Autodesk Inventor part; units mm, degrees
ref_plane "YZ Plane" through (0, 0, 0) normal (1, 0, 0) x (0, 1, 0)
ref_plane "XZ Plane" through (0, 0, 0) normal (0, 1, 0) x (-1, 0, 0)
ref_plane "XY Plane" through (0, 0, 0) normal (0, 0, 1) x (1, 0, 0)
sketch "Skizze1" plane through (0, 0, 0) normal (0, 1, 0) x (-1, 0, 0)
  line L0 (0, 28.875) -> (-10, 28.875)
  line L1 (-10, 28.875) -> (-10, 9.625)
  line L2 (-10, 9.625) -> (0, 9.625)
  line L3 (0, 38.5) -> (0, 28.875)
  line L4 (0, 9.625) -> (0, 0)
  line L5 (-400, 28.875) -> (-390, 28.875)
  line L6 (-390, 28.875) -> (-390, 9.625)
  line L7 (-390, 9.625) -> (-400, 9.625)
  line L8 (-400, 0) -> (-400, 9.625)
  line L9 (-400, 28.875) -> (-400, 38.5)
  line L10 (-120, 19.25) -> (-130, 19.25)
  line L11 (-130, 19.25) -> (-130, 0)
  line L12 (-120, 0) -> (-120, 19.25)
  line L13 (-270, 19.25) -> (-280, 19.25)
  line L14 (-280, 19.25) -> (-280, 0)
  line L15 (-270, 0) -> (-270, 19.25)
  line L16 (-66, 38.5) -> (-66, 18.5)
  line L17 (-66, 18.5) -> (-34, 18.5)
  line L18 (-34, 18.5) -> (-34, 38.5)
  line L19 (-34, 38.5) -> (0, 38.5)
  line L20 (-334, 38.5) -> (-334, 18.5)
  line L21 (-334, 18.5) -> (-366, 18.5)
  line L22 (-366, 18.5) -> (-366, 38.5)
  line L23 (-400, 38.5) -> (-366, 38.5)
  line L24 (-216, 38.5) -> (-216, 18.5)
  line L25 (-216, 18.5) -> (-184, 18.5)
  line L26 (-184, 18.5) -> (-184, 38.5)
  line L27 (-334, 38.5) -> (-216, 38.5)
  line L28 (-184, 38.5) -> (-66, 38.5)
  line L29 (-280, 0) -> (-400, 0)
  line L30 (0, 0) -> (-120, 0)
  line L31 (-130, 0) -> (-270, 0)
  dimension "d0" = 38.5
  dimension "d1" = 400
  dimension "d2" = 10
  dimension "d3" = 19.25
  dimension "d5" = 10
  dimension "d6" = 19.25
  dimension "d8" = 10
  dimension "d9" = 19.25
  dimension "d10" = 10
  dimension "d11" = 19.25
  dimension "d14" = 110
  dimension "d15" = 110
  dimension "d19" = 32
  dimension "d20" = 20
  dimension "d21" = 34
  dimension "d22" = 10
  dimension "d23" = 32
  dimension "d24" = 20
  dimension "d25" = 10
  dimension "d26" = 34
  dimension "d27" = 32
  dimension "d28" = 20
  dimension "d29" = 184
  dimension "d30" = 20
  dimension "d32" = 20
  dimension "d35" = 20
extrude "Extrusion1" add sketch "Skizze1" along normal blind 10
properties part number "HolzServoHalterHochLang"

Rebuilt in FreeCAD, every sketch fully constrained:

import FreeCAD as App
import Part
import Sketcher

V = App.Vector
Q = App.Units.Quantity

doc = App.newDocument("Part")
body = doc.addObject("PartDesign::Body", "Body")

# Sketch on XZ plane
sketch1 = body.newObject("Sketcher::SketchObject", "Sketch")
sketch1.AttachmentSupport = (doc.getObject("XZ_Plane"), [""])
sketch1.MapMode = "FlatFace"
sketch1.addGeometry([
    Part.LineSegment(V(10, 28.875, 0), V(0, 28.875, 0)),  # 0
    Part.LineSegment(V(0, 28.875, 0), V(0, 38.5, 0)),  # 1
    Part.LineSegment(V(0, 38.5, 0), V(34, 38.5, 0)),  # 2
    Part.LineSegment(V(34, 38.5, 0), V(34, 18.5, 0)),  # 3
    Part.LineSegment(V(34, 18.5, 0), V(66, 18.5, 0)),  # 4
    Part.LineSegment(V(66, 18.5, 0), V(66, 38.5, 0)),  # 5
    Part.LineSegment(V(66, 38.5, 0), V(184, 38.5, 0)),  # 6
    Part.LineSegment(V(184, 38.5, 0), V(184, 18.5, 0)),  # 7
    Part.LineSegment(V(184, 18.5, 0), V(216, 18.5, 0)),  # 8
    Part.LineSegment(V(216, 18.5, 0), V(216, 38.5, 0)),  # 9
    Part.LineSegment(V(216, 38.5, 0), V(334, 38.5, 0)),  # 10
    Part.LineSegment(V(334, 38.5, 0), V(334, 18.5, 0)),  # 11
    Part.LineSegment(V(334, 18.5, 0), V(366, 18.5, 0)),  # 12
    Part.LineSegment(V(366, 18.5, 0), V(366, 38.5, 0)),  # 13
    Part.LineSegment(V(366, 38.5, 0), V(400, 38.5, 0)),  # 14
    Part.LineSegment(V(400, 38.5, 0), V(400, 28.875, 0)),  # 15
    Part.LineSegment(V(400, 28.875, 0), V(390, 28.875, 0)),  # 16
    Part.LineSegment(V(390, 28.875, 0), V(390, 9.625, 0)),  # 17
    Part.LineSegment(V(390, 9.625, 0), V(400, 9.625, 0)),  # 18
    Part.LineSegment(V(400, 9.625, 0), V(400, 0, 0)),  # 19
    Part.LineSegment(V(400, 0, 0), V(280, 0, 0)),  # 20
    Part.LineSegment(V(280, 0, 0), V(280, 19.25, 0)),  # 21
    Part.LineSegment(V(280, 19.25, 0), V(270, 19.25, 0)),  # 22
    Part.LineSegment(V(270, 19.25, 0), V(270, 0, 0)),  # 23
    Part.LineSegment(V(270, 0, 0), V(130, 0, 0)),  # 24
    Part.LineSegment(V(130, 0, 0), V(130, 19.25, 0)),  # 25
    Part.LineSegment(V(130, 19.25, 0), V(120, 19.25, 0)),  # 26
    Part.LineSegment(V(120, 19.25, 0), V(120, 0, 0)),  # 27
    Part.LineSegment(V(120, 0, 0), V(0, 0, 0)),  # 28
    Part.LineSegment(V(0, 0, 0), V(0, 9.625, 0)),  # 29
    Part.LineSegment(V(0, 9.625, 0), V(10, 9.625, 0)),  # 30
    Part.LineSegment(V(10, 9.625, 0), V(10, 28.875, 0)),  # 31
], False)
sketch1.addConstraint([
    Sketcher.Constraint("Coincident", 0, 2, 1, 1),
    Sketcher.Constraint("Coincident", 1, 2, 2, 1),
    Sketcher.Constraint("Coincident", 2, 2, 3, 1),
    Sketcher.Constraint("Coincident", 3, 2, 4, 1),
    Sketcher.Constraint("Coincident", 4, 2, 5, 1),
    Sketcher.Constraint("Coincident", 5, 2, 6, 1),
    Sketcher.Constraint("Coincident", 6, 2, 7, 1),
    Sketcher.Constraint("Coincident", 7, 2, 8, 1),
    Sketcher.Constraint("Coincident", 8, 2, 9, 1),
    Sketcher.Constraint("Coincident", 9, 2, 10, 1),
    Sketcher.Constraint("Coincident", 10, 2, 11, 1),
    Sketcher.Constraint("Coincident", 11, 2, 12, 1),
    Sketcher.Constraint("Coincident", 12, 2, 13, 1),
    Sketcher.Constraint("Coincident", 13, 2, 14, 1),
    Sketcher.Constraint("Coincident", 14, 2, 15, 1),
    Sketcher.Constraint("Coincident", 15, 2, 16, 1),
    Sketcher.Constraint("Coincident", 16, 2, 17, 1),
    Sketcher.Constraint("Coincident", 17, 2, 18, 1),
    Sketcher.Constraint("Coincident", 18, 2, 19, 1),
    Sketcher.Constraint("Coincident", 19, 2, 20, 1),
    Sketcher.Constraint("Coincident", 20, 2, 21, 1),
    Sketcher.Constraint("Coincident", 21, 2, 22, 1),
    Sketcher.Constraint("Coincident", 22, 2, 23, 1),
    Sketcher.Constraint("Coincident", 23, 2, 24, 1),
    Sketcher.Constraint("Coincident", 24, 2, 25, 1),
    Sketcher.Constraint("Coincident", 25, 2, 26, 1),
    Sketcher.Constraint("Coincident", 26, 2, 27, 1),
    Sketcher.Constraint("Coincident", 27, 2, 28, 1),
    Sketcher.Constraint("Coincident", 28, 2, 29, 1),
    Sketcher.Constraint("Coincident", 29, 2, 30, 1),
    Sketcher.Constraint("Coincident", 30, 2, 31, 1),
    Sketcher.Constraint("Coincident", 31, 2, 0, 1),
    Sketcher.Constraint("Horizontal", 0),
    Sketcher.Constraint("Vertical", 1),
    Sketcher.Constraint("Horizontal", 2),
    Sketcher.Constraint("Vertical", 3),
    Sketcher.Constraint("Horizontal", 4),
    Sketcher.Constraint("Vertical", 5),
    Sketcher.Constraint("Horizontal", 6),
    Sketcher.Constraint("Vertical", 7),
    Sketcher.Constraint("Horizontal", 8),
    Sketcher.Constraint("Vertical", 9),
    Sketcher.Constraint("Horizontal", 10),
    Sketcher.Constraint("Vertical", 11),
    Sketcher.Constraint("Horizontal", 12),
    Sketcher.Constraint("Vertical", 13),
    Sketcher.Constraint("Horizontal", 14),
    Sketcher.Constraint("Vertical", 15),
    Sketcher.Constraint("Horizontal", 16),
    Sketcher.Constraint("Vertical", 17),
    Sketcher.Constraint("Horizontal", 18),
    Sketcher.Constraint("Vertical", 19),
    Sketcher.Constraint("Horizontal", 20),
    Sketcher.Constraint("Vertical", 21),
    Sketcher.Constraint("Horizontal", 22),
    Sketcher.Constraint("Vertical", 23),
    Sketcher.Constraint("Horizontal", 24),
    Sketcher.Constraint("Vertical", 25),
    Sketcher.Constraint("Horizontal", 26),
    Sketcher.Constraint("Vertical", 27),
    Sketcher.Constraint("Horizontal", 28),
    Sketcher.Constraint("Vertical", 29),
    Sketcher.Constraint("Horizontal", 30),
    Sketcher.Constraint("Vertical", 31),
    Sketcher.Constraint("Coincident", 28, 2, -1, 1),
    Sketcher.Constraint("PointOnObject", 0, 2, -2),
    Sketcher.Constraint("PointOnObject", 19, 2, -1),
    Sketcher.Constraint("PointOnObject", 23, 2, -1),
    Sketcher.Constraint("Horizontal", 2, 2, 5, 2),
    Sketcher.Constraint("Horizontal", 4, 2, 7, 2),
    Sketcher.Constraint("Horizontal", 6, 2, 9, 2),
    Sketcher.Constraint("Horizontal", 8, 2, 11, 2),
    Sketcher.Constraint("Horizontal", 10, 2, 13, 2),
    Sketcher.Constraint("Horizontal", 0, 2, 15, 2),
    Sketcher.Constraint("Horizontal", 22, 2, 25, 2),
    Sketcher.Constraint("Horizontal", 18, 2, 29, 2),
    Sketcher.Constraint("Vertical", 15, 2, 18, 2),
    Sketcher.Constraint("Equal", 4, 8),
    Sketcher.Constraint("Equal", 6, 10),
    Sketcher.Constraint("Equal", 8, 12),
    Sketcher.Constraint("Equal", 2, 14),
    Sketcher.Constraint("Equal", 0, 16),
    Sketcher.Constraint("Equal", 18, 22),
    Sketcher.Constraint("Equal", 22, 26),
    Sketcher.Constraint("Equal", 20, 28),
    Sketcher.Constraint("Equal", 15, 19),
    Sketcher.Constraint("Equal", 17, 21),
    Sketcher.Constraint("DistanceX", 0, 2, 0, 1, Q("10 mm")),
    Sketcher.Constraint("DistanceX", 2, 1, 2, 2, Q("34 mm")),
    Sketcher.Constraint("DistanceX", 4, 1, 4, 2, Q("32 mm")),
    Sketcher.Constraint("DistanceY", 3, 2, 3, 1, Q("20 mm")),
    Sketcher.Constraint("DistanceX", -1, 1, 6, 2, Q("184 mm")),
    Sketcher.Constraint("DistanceY", 17, 2, 17, 1, Q("19.25 mm")),
    Sketcher.Constraint("DistanceY", -1, 1, 1, 2, Q("38.5 mm")),
    Sketcher.Constraint("DistanceX", 20, 2, 20, 1, Q("120 mm")),
])
pad1 = body.newObject("PartDesign::Pad", "Pad")
pad1.Profile = sketch1
pad1.Length = 10
pad1.Reversed = True

doc.recompute()
